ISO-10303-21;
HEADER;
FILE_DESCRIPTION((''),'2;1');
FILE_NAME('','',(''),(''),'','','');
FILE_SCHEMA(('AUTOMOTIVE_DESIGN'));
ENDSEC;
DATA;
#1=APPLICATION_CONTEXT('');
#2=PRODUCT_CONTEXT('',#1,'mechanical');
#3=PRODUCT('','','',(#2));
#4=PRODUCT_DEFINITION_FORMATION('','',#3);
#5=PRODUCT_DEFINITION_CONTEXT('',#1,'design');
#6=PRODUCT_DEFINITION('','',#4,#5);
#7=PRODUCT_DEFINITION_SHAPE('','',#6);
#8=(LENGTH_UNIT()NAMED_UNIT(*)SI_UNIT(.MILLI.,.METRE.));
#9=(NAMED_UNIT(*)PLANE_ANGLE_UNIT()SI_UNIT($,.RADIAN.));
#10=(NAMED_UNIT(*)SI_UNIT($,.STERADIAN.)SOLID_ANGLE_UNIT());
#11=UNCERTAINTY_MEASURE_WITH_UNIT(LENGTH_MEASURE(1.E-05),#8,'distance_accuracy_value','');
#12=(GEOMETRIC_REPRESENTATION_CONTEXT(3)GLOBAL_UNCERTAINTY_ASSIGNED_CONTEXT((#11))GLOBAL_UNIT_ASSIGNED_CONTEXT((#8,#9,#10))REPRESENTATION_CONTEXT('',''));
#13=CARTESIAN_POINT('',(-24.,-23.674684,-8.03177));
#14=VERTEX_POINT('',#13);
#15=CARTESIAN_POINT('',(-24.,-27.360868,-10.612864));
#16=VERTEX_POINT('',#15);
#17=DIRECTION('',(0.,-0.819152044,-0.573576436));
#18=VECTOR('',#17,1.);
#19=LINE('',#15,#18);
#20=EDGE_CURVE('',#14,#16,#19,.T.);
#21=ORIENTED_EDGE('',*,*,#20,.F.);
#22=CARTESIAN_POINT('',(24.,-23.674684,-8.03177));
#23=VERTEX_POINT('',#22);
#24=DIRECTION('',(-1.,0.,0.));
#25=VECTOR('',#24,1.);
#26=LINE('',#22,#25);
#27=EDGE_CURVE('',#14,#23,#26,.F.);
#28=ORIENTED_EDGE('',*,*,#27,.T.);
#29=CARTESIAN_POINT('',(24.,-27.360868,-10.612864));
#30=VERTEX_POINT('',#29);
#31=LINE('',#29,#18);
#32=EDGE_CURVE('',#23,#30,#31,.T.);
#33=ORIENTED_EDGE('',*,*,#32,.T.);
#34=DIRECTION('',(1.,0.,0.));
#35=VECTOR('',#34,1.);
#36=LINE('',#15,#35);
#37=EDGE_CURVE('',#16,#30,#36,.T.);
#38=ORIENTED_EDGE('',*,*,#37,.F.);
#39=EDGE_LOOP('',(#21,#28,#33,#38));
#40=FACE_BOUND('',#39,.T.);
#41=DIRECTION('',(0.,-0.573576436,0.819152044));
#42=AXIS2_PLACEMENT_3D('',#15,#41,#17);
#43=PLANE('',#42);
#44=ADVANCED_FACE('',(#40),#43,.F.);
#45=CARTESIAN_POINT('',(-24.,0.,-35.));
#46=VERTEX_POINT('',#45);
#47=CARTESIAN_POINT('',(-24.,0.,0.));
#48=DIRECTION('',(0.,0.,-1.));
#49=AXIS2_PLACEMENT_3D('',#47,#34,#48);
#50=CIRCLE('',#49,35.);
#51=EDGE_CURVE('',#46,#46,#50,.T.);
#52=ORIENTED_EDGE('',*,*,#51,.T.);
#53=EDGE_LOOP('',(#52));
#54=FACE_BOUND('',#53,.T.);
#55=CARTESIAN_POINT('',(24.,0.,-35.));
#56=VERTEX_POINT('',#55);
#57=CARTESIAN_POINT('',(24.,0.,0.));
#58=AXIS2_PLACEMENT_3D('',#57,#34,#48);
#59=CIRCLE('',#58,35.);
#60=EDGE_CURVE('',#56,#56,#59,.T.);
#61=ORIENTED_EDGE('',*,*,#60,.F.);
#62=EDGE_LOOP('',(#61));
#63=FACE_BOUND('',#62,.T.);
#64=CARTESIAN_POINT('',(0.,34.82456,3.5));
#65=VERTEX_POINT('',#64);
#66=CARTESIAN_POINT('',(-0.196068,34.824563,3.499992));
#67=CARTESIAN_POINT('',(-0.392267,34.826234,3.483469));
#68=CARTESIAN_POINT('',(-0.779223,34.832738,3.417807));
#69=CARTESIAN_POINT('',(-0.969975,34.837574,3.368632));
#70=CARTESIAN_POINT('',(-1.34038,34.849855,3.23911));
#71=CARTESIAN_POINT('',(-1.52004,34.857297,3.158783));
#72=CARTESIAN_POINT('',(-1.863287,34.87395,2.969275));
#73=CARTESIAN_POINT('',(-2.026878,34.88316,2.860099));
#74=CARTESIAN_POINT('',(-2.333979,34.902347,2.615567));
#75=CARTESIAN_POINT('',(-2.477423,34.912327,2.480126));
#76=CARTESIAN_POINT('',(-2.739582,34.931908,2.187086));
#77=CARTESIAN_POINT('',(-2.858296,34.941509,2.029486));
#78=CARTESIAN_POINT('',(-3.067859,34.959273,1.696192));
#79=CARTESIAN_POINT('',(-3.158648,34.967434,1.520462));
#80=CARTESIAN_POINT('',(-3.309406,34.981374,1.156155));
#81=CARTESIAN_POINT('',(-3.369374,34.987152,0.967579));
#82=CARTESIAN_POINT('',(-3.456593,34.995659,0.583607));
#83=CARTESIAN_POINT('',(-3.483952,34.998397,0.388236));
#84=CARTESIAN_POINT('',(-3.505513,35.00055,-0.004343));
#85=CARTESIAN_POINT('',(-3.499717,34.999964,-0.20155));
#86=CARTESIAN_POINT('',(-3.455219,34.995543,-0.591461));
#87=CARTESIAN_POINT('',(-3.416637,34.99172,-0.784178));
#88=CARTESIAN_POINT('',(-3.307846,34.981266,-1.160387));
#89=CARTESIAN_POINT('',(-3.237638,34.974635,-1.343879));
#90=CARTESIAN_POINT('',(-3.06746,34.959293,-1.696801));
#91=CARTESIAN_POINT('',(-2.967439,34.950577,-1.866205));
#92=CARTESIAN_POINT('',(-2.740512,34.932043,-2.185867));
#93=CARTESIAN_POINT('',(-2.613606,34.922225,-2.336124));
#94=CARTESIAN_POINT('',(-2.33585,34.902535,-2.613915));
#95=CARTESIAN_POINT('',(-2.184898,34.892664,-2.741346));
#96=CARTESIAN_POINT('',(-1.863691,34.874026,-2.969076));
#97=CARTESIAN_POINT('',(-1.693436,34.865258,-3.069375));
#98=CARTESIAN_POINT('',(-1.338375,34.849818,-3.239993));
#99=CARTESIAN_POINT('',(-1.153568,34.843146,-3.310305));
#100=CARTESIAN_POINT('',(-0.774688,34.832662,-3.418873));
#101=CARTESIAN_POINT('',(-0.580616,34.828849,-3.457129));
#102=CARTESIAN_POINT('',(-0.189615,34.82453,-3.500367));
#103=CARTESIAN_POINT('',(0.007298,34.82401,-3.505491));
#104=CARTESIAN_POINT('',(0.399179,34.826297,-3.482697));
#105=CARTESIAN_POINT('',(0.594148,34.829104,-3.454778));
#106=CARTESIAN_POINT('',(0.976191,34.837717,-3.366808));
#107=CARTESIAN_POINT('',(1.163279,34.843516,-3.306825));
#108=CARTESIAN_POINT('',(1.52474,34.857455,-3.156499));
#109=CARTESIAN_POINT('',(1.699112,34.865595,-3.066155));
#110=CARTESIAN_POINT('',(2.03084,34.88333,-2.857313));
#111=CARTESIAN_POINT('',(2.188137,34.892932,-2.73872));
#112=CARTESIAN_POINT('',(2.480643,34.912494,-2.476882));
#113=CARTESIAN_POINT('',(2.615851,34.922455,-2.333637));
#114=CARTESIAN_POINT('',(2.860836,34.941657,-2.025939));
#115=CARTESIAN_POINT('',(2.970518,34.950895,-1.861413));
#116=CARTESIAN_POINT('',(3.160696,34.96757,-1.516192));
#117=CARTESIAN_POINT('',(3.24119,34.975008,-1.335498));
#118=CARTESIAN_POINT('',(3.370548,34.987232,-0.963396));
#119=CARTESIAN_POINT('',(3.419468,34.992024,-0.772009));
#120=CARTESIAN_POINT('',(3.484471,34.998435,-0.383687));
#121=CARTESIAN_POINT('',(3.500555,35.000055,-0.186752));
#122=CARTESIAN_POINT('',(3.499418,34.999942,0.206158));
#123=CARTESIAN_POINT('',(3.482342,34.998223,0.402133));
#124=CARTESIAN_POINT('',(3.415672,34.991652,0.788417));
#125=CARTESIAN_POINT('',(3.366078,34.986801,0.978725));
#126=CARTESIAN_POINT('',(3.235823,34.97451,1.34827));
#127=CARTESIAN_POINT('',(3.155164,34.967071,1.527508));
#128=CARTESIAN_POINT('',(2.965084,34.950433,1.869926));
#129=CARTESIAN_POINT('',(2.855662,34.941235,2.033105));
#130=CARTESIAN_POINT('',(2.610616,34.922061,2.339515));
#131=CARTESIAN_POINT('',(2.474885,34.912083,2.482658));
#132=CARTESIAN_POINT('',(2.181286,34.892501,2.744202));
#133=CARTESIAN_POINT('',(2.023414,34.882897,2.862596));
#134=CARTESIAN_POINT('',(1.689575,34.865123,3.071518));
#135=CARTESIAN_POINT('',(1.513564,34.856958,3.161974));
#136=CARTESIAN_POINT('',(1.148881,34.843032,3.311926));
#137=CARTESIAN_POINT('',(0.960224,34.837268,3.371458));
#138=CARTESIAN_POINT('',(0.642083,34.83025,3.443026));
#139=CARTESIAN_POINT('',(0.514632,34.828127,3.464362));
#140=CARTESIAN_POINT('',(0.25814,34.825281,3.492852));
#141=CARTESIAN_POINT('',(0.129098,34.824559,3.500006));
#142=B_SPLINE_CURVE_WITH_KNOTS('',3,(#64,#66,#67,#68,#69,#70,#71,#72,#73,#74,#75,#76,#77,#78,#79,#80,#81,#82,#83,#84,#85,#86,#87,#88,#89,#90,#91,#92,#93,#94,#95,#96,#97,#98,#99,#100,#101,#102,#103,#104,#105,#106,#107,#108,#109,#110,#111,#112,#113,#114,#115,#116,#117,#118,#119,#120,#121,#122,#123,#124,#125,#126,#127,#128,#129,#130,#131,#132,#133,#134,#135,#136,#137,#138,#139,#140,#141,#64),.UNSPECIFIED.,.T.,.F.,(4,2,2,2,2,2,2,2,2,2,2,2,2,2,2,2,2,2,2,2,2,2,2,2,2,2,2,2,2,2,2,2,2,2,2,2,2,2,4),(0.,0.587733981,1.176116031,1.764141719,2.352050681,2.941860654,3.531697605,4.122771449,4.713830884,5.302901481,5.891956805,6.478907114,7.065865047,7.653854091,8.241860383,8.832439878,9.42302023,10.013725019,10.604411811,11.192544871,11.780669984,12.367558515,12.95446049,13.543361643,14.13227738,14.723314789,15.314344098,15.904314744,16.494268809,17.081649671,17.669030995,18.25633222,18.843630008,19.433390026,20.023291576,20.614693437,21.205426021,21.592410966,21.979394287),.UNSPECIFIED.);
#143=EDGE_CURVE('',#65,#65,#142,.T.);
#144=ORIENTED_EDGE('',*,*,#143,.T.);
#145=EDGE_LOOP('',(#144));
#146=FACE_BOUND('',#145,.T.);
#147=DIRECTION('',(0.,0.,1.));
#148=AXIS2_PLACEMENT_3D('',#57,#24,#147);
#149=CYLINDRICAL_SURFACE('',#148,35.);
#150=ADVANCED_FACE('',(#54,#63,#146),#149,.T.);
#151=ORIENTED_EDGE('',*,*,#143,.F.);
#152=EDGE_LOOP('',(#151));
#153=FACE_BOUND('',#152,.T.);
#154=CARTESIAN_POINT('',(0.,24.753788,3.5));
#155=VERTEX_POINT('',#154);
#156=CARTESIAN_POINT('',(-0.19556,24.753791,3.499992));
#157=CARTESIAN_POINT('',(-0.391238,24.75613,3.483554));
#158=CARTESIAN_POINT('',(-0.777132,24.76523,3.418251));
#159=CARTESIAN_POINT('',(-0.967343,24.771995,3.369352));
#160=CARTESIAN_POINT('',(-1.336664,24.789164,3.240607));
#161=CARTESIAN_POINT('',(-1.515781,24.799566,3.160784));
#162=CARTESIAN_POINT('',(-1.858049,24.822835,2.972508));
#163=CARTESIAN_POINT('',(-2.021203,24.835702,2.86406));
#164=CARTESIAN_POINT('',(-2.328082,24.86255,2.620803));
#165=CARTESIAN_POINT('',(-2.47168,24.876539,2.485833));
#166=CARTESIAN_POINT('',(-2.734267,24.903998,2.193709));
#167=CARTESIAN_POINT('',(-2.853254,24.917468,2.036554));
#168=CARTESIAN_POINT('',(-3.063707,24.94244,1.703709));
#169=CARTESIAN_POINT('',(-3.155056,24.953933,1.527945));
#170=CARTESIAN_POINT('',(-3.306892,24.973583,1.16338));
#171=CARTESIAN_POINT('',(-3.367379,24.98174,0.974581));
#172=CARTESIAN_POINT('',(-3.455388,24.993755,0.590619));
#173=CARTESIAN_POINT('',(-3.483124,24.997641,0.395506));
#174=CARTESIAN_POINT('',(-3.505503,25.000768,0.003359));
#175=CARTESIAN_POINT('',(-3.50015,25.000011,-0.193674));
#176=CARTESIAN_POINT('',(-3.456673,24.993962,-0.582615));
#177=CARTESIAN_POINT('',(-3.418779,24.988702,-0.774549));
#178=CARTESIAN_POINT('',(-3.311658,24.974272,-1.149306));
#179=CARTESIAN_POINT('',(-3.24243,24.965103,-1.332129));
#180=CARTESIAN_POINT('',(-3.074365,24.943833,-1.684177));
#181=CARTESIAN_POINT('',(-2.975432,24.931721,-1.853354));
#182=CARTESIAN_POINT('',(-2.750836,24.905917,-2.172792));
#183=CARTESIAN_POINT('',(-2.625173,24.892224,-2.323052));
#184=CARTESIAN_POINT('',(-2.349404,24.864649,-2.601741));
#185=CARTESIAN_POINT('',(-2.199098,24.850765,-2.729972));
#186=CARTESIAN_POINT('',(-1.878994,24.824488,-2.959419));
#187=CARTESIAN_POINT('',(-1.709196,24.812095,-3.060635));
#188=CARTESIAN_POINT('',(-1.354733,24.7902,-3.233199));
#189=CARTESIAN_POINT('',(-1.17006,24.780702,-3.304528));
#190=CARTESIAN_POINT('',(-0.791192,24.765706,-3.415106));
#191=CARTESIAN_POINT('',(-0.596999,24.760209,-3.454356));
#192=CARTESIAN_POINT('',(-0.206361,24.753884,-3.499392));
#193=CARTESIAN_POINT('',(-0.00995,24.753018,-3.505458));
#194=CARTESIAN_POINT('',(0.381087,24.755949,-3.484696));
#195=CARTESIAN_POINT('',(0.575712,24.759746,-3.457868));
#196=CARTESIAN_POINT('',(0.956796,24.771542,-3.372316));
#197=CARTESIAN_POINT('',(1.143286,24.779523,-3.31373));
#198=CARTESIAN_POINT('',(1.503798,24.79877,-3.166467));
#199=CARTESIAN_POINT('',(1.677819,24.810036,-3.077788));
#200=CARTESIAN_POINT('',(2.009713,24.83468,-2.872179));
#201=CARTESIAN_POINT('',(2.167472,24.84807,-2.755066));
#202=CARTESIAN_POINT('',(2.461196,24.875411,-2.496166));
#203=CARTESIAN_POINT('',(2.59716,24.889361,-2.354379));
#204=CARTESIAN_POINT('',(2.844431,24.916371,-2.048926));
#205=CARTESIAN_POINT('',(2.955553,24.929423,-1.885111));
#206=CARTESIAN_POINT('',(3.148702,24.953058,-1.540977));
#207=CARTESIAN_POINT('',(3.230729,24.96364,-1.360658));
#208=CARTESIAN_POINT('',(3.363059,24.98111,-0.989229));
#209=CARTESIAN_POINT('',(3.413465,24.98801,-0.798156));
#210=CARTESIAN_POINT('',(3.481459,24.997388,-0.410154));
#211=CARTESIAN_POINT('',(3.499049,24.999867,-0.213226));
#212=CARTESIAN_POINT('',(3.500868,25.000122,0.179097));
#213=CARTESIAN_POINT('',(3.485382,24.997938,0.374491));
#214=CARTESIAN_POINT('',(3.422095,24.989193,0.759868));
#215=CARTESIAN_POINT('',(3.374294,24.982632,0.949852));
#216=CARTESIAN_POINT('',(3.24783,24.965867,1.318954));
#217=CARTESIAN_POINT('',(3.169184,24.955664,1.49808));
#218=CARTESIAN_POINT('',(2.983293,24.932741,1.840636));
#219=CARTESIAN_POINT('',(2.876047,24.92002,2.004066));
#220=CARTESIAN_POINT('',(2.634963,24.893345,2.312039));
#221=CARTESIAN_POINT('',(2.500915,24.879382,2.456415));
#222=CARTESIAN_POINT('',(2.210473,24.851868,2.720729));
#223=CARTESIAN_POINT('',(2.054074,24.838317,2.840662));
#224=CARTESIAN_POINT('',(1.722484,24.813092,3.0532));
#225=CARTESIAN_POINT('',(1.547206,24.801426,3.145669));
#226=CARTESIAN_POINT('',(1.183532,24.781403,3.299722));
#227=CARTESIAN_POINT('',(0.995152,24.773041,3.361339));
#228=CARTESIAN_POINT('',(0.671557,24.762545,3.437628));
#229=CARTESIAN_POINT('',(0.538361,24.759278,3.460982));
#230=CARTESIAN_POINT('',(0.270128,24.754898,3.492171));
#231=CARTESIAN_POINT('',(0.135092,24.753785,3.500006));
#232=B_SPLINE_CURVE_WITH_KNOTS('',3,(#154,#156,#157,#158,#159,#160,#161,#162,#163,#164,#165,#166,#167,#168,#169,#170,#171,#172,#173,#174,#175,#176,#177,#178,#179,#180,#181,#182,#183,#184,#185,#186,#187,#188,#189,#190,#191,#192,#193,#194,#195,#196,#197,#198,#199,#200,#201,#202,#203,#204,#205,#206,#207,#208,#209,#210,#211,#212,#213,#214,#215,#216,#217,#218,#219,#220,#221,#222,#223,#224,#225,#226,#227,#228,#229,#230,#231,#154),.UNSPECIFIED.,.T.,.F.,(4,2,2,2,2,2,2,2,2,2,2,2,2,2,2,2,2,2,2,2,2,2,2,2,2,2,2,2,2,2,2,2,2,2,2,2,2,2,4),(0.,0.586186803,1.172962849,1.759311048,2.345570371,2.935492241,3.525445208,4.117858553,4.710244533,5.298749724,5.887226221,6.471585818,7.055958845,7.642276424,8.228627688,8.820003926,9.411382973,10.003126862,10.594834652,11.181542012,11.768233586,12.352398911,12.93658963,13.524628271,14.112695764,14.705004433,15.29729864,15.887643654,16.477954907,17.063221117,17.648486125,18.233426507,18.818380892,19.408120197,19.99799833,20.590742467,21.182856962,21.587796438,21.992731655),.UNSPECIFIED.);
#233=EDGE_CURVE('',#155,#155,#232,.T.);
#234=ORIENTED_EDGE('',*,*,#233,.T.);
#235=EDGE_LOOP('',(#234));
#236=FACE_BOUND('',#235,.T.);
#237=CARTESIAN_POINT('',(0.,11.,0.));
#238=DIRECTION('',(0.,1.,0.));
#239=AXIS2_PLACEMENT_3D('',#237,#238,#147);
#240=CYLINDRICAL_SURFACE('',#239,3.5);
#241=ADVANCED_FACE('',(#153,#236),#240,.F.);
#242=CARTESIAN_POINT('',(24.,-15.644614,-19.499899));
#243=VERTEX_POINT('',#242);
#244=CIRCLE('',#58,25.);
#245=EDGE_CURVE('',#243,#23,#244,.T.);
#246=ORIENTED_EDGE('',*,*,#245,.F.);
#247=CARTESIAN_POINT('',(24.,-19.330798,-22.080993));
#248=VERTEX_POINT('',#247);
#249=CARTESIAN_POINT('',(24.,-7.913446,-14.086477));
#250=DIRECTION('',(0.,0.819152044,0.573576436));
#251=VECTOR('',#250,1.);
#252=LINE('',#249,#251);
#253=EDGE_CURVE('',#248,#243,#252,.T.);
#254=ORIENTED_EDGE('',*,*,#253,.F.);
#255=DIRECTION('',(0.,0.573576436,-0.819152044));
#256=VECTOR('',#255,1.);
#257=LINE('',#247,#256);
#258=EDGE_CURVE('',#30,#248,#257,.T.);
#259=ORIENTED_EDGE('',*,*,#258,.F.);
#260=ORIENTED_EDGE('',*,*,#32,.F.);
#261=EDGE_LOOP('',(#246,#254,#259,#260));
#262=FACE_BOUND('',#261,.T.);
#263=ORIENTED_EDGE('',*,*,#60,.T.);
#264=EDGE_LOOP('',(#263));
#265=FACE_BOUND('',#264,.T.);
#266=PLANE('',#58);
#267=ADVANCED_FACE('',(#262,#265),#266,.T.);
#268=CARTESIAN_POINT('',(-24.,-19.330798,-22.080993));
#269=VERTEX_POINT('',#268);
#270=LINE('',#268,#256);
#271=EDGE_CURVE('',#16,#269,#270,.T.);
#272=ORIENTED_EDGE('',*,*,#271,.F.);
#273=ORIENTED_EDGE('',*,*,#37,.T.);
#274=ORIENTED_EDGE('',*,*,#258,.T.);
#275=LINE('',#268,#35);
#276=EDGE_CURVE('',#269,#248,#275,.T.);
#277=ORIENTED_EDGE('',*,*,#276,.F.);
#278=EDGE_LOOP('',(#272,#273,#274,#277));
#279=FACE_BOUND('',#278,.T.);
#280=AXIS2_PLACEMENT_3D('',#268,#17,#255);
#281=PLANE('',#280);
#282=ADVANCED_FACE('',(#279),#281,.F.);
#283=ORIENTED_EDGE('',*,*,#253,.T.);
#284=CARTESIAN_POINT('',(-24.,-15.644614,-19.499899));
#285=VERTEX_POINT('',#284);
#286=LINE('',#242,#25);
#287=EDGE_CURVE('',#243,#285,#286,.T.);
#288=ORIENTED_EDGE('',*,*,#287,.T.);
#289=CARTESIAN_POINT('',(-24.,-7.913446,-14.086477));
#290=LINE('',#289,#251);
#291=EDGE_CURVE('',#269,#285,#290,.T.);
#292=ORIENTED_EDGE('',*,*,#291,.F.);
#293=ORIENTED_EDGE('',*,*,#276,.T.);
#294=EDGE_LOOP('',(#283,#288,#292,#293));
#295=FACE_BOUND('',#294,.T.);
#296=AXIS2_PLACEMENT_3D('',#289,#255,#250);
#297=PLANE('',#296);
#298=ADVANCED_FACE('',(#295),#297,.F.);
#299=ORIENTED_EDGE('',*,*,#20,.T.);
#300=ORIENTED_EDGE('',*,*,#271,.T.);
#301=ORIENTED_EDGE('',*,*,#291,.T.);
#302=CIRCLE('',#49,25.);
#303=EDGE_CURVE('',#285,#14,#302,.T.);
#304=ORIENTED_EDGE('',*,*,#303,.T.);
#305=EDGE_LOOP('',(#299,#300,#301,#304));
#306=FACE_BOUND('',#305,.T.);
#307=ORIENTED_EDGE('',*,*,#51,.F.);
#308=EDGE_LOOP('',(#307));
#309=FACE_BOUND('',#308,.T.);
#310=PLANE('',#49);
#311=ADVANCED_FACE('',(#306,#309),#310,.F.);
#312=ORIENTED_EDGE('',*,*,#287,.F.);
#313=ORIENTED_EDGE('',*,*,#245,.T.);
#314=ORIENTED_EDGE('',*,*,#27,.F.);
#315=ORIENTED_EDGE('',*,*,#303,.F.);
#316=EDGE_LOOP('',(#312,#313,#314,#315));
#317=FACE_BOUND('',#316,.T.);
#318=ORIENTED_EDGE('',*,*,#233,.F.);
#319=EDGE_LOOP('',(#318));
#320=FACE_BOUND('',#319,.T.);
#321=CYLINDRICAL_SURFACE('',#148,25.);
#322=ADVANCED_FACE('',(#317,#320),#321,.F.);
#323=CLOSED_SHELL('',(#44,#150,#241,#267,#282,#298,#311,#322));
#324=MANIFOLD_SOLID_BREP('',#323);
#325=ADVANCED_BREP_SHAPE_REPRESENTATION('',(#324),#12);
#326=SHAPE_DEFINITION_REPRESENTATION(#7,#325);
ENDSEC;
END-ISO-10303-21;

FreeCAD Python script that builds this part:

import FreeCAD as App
import Part
import Sketcher
from FreeCAD import Vector
Q = App.Units.Quantity

doc = App.newDocument("Part")
params = doc.addObject("Spreadsheet::Sheet", "Params")
for row, (alias, value) in enumerate([
    ("sketch1_diameter", "70 mm"),
    ("sketch1_diameter2", "50 mm"),
    ("pad1_length", "48 mm"),
    ("sketch2_length", "14 mm"),
    ("sketch3_diameter", "7 mm"),
    ("pocket2_length", "24 mm"),
], start=1):
    params.set(f"A{row}", alias)
    params.set(f"B{row}", "=" + value)
    params.setAlias(f"B{row}", alias)

body = doc.addObject("PartDesign::Body", "Body")

sketch1 = body.newObject("Sketcher::SketchObject", "Sketch")
sketch1.AttachmentSupport = (doc.getObject("YZ_Plane"), [""])
sketch1.MapMode = "FlatFace"
sketch1.addGeometry(Part.Circle(Vector(0, 0, 0), Vector(0, 0, 1), 35), False)
sketch1.addGeometry(Part.Circle(Vector(0, 0, 0), Vector(0, 0, 1), 25), False)
sketch1.addConstraint(Sketcher.Constraint("Coincident", 0, 3, -1, 1))
sketch1.addConstraint(Sketcher.Constraint("Coincident", 1, 3, -1, 1))
sketch1.addConstraint(Sketcher.Constraint("Diameter", 0, 70.0))
sketch1.addConstraint(Sketcher.Constraint("Diameter", 1, 50.0))
sketch1.setExpression("Constraints[2]", "Params.sketch1_diameter")
sketch1.setExpression("Constraints[3]", "Params.sketch1_diameter2")
pad1 = body.newObject("PartDesign::Pad", "Pad")
pad1.Profile = sketch1
pad1.setExpression("Length", "Params.pad1_length")
pad1.Midplane = True

sketch2 = body.newObject("Sketcher::SketchObject", "Sketch001")
sketch2.AttachmentSupport = (doc.getObject("YZ_Plane"), [""])
sketch2.MapMode = "FlatFace"
sketch2.AttachmentOffset = App.Placement(Vector(0, 0, 24), App.Rotation())
sketch2.addGeometry(Part.LineSegment(Vector(-27, -11, 0), Vector(-19, -22, 0)), False)
sketch2.addGeometry(Part.LineSegment(Vector(-19, -22, 0), Vector(-8, -14, 0)), False)
sketch2.addGeometry(Part.LineSegment(Vector(-8, -14, 0), Vector(-16, -3, 0)), False)
sketch2.addGeometry(Part.LineSegment(Vector(-16, -3, 0), Vector(-27, -11, 0)), False)
sketch2.addConstraint(Sketcher.Constraint("Coincident", 0, 2, 1, 1))
sketch2.addConstraint(Sketcher.Constraint("Coincident", 1, 2, 2, 1))
sketch2.addConstraint(Sketcher.Constraint("Coincident", 2, 2, 3, 1))
sketch2.addConstraint(Sketcher.Constraint("Coincident", 3, 2, 0, 1))
sketch2.addConstraint(Sketcher.Constraint("Perpendicular", 0, 1))
sketch2.addConstraint(Sketcher.Constraint("Perpendicular", 1, 2))
sketch2.addConstraint(Sketcher.Constraint("Perpendicular", 2, 3))
sketch2.addConstraint(Sketcher.Constraint("Angle", 0, Q("-55 deg")))
sketch2.addConstraint(Sketcher.Constraint("Distance", 0, 14.0))
sketch2.addConstraint(Sketcher.Constraint("DistanceX", 0, 2, -1, 1, 19.330798))
sketch2.addConstraint(Sketcher.Constraint("DistanceY", 2, 2, -1, 1, 2.618348))
sketch2.addConstraint(Sketcher.Constraint("DistanceX", 0, 2, 1, 2, 11.417352))
sketch2.setExpression("Constraints[8]", "Params.sketch2_length")
pocket1 = body.newObject("PartDesign::Pocket", "Pocket")
pocket1.Profile = sketch2
pocket1.Type = "ThroughAll"

sketch3 = body.newObject("Sketcher::SketchObject", "Sketch002")
sketch3.AttachmentSupport = (doc.getObject("XZ_Plane"), [""])
sketch3.MapMode = "FlatFace"
sketch3.AttachmentOffset = App.Placement(Vector(0, 0, -35), App.Rotation())
sketch3.addGeometry(Part.Circle(Vector(0, 0, 0), Vector(0, 0, 1), 3.5), False)
sketch3.addConstraint(Sketcher.Constraint("Coincident", 0, 3, -1, 1))
sketch3.addConstraint(Sketcher.Constraint("Diameter", 0, 7.0))
sketch3.setExpression("Constraints[1]", "Params.sketch3_diameter")
pocket2 = body.newObject("PartDesign::Pocket", "Pocket001")
pocket2.Profile = sketch3
pocket2.setExpression("Length", "Params.pocket2_length")
pocket2.Reversed = True

doc.recompute()
